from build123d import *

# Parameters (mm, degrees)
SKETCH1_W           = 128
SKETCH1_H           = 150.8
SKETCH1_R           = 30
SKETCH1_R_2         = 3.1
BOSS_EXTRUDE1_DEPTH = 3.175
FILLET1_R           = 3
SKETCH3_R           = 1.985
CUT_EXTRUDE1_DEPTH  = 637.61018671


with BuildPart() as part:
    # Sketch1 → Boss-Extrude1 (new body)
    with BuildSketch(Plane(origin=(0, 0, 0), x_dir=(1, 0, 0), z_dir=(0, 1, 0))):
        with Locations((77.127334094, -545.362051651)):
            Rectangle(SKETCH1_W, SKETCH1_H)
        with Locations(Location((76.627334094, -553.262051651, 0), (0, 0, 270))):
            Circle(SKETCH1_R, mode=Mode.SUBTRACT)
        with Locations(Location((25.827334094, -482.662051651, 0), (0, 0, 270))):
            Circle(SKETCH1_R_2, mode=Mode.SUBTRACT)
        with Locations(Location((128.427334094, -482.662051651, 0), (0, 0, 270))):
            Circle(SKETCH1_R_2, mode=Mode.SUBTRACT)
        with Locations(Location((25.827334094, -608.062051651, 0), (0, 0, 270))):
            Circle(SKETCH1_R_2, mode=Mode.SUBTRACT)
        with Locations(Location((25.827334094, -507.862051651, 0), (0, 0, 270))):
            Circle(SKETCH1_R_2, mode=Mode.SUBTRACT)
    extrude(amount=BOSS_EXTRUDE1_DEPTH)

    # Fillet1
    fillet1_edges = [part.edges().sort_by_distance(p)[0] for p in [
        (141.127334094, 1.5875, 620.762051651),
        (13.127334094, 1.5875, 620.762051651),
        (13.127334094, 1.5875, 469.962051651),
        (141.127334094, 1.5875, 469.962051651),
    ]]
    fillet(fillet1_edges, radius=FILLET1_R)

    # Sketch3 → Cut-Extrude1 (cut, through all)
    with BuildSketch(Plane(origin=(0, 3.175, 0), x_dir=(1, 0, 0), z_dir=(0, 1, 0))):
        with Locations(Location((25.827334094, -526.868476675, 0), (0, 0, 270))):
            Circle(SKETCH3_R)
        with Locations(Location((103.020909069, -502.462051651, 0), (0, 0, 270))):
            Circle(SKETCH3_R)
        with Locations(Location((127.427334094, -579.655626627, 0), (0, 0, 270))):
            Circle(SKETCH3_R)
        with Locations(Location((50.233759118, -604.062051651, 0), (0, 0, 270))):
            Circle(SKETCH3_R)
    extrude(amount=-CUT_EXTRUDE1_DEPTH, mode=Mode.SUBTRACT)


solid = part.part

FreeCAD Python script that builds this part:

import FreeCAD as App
import Part
import Sketcher
from FreeCAD import Vector
Q = App.Units.Quantity


def edges_at(feature, points):
    """Names of the edges that pass closest to the given points."""
    edges = feature.Shape.Edges
    near = lambda p: min(range(len(edges)), key=lambda i: edges[i].distToShape(Part.Vertex(*p))[0])
    return sorted({f"Edge{near(p) + 1}" for p in points})

doc = App.newDocument("Part")
params = doc.addObject("Spreadsheet::Sheet", "Params")
for row, (alias, value) in enumerate([
    ("sketch1_diameter", "60 mm"),
    ("sketch1_diameter2", "6.2 mm"),
    ("sketch1_width", "128 mm"),
    ("sketch1_height", "150.8 mm"),
    ("pad1_length", "3.175 mm"),
    ("fillet_radius", "3 mm"),
    ("sketch2_diameter", "3.97 mm"),
], start=1):
    params.set(f"A{row}", alias)
    params.set(f"B{row}", "=" + value)
    params.setAlias(f"B{row}", alias)

body = doc.addObject("PartDesign::Body", "Body")

sketch1 = body.newObject("Sketcher::SketchObject", "Sketch")
sketch1.AttachmentSupport = (doc.getObject("XZ_Plane"), [""])
sketch1.MapMode = "FlatFace"
sketch1.addGeometry([
    Part.LineSegment(Vector(13.1, 470, 0), Vector(13.1, 620.8, 0)),
    Part.LineSegment(Vector(13.1, 620.8, 0), Vector(141.1, 620.8, 0)),
    Part.LineSegment(Vector(141.1, 620.8, 0), Vector(141.1, 470, 0)),
    Part.LineSegment(Vector(141.1, 470, 0), Vector(13.1, 470, 0)),
    Part.Circle(Vector(25.8, 608.1, 0), Vector(0, 0, 1), 3.1),
    Part.Circle(Vector(76.6, 553.3, 0), Vector(0, 0, 1), 30),
    Part.Circle(Vector(25.8, 507.9, 0), Vector(0, 0, 1), 3.1),
    Part.Circle(Vector(25.8, 482.7, 0), Vector(0, 0, 1), 3.1),
    Part.Circle(Vector(128.4, 482.7, 0), Vector(0, 0, 1), 3.1),
], False)
sketch1.addConstraint([
    Sketcher.Constraint("Coincident", 0, 2, 1, 1),
    Sketcher.Constraint("Coincident", 1, 2, 2, 1),
    Sketcher.Constraint("Coincident", 2, 2, 3, 1),
    Sketcher.Constraint("Coincident", 3, 2, 0, 1),
    Sketcher.Constraint("Vertical", 0),
    Sketcher.Constraint("Horizontal", 1),
    Sketcher.Constraint("Vertical", 2),
    Sketcher.Constraint("Horizontal", 3),
    Sketcher.Constraint("Equal", 4, 6),
    Sketcher.Constraint("Equal", 6, 7),
    Sketcher.Constraint("Equal", 7, 8),
    Sketcher.Constraint("Horizontal", 7, 3, 8, 3),
    Sketcher.Constraint("Vertical", 4, 3, 6, 3),
    Sketcher.Constraint("Vertical", 6, 3, 7, 3),
    Sketcher.Constraint("Diameter", 5, Q("60 mm")),
    Sketcher.Constraint("Diameter", 4, Q("6.2 mm")),
    Sketcher.Constraint("DistanceX", 1, 1, 1, 2, Q("128 mm")),
    Sketcher.Constraint("DistanceY", 0, 1, 0, 2, Q("150.8 mm")),
    Sketcher.Constraint("DistanceX", 4, 3, 5, 3, Q("50.8 mm")),
    Sketcher.Constraint("DistanceY", 5, 3, 4, 3, Q("54.8 mm")),
    Sketcher.Constraint("DistanceY", 6, 3, 5, 3, Q("45.4 mm")),
    Sketcher.Constraint("DistanceY", 7, 3, 6, 3, Q("25.2 mm")),
    Sketcher.Constraint("DistanceX", 5, 3, 8, 3, Q("51.8 mm")),
    Sketcher.Constraint("DistanceX", 0, 2, 4, 3, Q("12.7 mm")),
    Sketcher.Constraint("DistanceY", 4, 3, 0, 2, Q("12.7 mm")),
    Sketcher.Constraint("DistanceY", -1, 1, 4, 3, Q("608.062052 mm")),
    Sketcher.Constraint("DistanceX", -1, 1, 4, 3, Q("25.827334 mm")),
])
sketch1.setExpression("Constraints[14]", "Params.sketch1_diameter")
sketch1.setExpression("Constraints[15]", "Params.sketch1_diameter2")
sketch1.setExpression("Constraints[16]", "Params.sketch1_width")
sketch1.setExpression("Constraints[17]", "Params.sketch1_height")
pad1 = body.newObject("PartDesign::Pad", "Pad")
pad1.Profile = sketch1
pad1.setExpression("Length", "Params.pad1_length")
pad1.Reversed = True
doc.recompute()

fillet = body.newObject("PartDesign::Fillet", "Fillet")
fillet.Base = (pad1, edges_at(pad1, [
    (141.127, 1.587, 620.762),
    (13.127, 1.587, 620.762),
    (13.127, 1.587, 469.962),
    (141.127, 1.587, 469.962),
]))
fillet.setExpression("Radius", "Params.fillet_radius")

sketch2 = body.newObject("Sketcher::SketchObject", "Sketch001")
sketch2.AttachmentSupport = (doc.getObject("XZ_Plane"), [""])
sketch2.MapMode = "FlatFace"
sketch2.AttachmentOffset = App.Placement(Vector(0, 0, -3.175), App.Rotation())
sketch2.addGeometry([
    Part.Circle(Vector(25.8, 526.9, 0), Vector(0, 0, 1), 2),
    Part.Circle(Vector(103, 502.5, 0), Vector(0, 0, 1), 2),
    Part.Circle(Vector(127.4, 579.7, 0), Vector(0, 0, 1), 2),
    Part.Circle(Vector(50.2, 604.1, 0), Vector(0, 0, 1), 2),
], False)
sketch2.addConstraint([
    Sketcher.Constraint("Equal", 0, 1),
    Sketcher.Constraint("Equal", 1, 2),
    Sketcher.Constraint("Equal", 2, 3),
    Sketcher.Constraint("Diameter", 0, Q("3.97 mm")),
    Sketcher.Constraint("DistanceX", 0, 3, 2, 3, Q("101.6 mm")),
    Sketcher.Constraint("DistanceY", 1, 3, 3, 3, Q("101.6 mm")),
    Sketcher.Constraint("DistanceX", -1, 1, 1, 3, Q("103.020909 mm")),
    Sketcher.Constraint("DistanceY", -1, 1, 1, 3, Q("502.462052 mm")),
    Sketcher.Constraint("DistanceX", -1, 1, 3, 3, Q("50.233759 mm")),
    Sketcher.Constraint("DistanceY", 0, 3, 2, 3, Q("52.78715 mm")),
    Sketcher.Constraint("DistanceX", -1, 1, 0, 3, Q("25.827334 mm")),
    Sketcher.Constraint("DistanceY", -1, 1, 0, 3, Q("526.868477 mm")),
])
sketch2.setExpression("Constraints[3]", "Params.sketch2_diameter")
pocket1 = body.newObject("PartDesign::Pocket", "Pocket")
pocket1.Profile = sketch2
pocket1.Type = "ThroughAll"
pocket1.Reversed = True

doc.recompute()
